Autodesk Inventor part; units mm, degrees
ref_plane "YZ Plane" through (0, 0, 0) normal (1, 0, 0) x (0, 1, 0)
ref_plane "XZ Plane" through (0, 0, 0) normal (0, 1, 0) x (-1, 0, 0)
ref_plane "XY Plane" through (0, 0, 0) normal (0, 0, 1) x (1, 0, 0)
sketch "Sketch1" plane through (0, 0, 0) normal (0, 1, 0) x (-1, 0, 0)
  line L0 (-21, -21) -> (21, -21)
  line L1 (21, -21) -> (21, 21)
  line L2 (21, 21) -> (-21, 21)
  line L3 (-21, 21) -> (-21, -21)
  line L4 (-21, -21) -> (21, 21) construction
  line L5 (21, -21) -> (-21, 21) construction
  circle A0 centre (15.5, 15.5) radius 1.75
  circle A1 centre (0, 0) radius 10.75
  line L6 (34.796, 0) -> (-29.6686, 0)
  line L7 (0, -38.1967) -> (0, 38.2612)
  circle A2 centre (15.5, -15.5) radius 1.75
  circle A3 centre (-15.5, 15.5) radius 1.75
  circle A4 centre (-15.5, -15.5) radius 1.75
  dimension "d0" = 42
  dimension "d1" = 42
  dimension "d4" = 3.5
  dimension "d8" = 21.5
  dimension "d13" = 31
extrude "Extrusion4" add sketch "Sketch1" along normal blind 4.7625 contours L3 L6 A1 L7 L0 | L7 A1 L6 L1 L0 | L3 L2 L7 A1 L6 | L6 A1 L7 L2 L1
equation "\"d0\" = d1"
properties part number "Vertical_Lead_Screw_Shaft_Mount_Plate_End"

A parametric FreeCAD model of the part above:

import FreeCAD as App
import Part
import Sketcher
from FreeCAD import Vector


def add_polygon(sketch, points):
    """Adds a closed chain of lines whose ends are joined by coincident constraints."""
    first, n = sketch.GeometryCount, len(points)
    for a, b in zip(points, points[1:] + points[:1]):
        sketch.addGeometry(Part.LineSegment(App.Vector(*a, 0), App.Vector(*b, 0)), False)
    for i in range(n):
        sketch.addConstraint(Sketcher.Constraint("Coincident", first + i, 2, first + (i + 1) % n, 1))

doc = App.newDocument("Part")
body = doc.addObject("PartDesign::Body", "Body")

# Sketch on XZ plane
sketch1 = body.newObject("Sketcher::SketchObject", "Sketch")
sketch1.AttachmentSupport = (doc.getObject("XZ_Plane"), [""])
sketch1.MapMode = "FlatFace"
add_polygon(sketch1, [(21, -21), (-21, -21), (-21, 21), (21, 21)])  # lines 0-3
sketch1.addGeometry(Part.Circle(Vector(0, 0, 0), Vector(0, 0, 1), 10.8), False)  # 4
sketch1.addGeometry(Part.Circle(Vector(15.5, -15.5, 0), Vector(0, 0, 1), 1.8), False)  # 5
sketch1.addGeometry(Part.Circle(Vector(15.5, 15.5, 0), Vector(0, 0, 1), 1.8), False)  # 6
sketch1.addGeometry(Part.Circle(Vector(-15.5, -15.5, 0), Vector(0, 0, 1), 1.8), False)  # 7
sketch1.addGeometry(Part.Circle(Vector(-15.5, 15.5, 0), Vector(0, 0, 1), 1.8), False)  # 8
sketch1.addConstraint(Sketcher.Constraint("Horizontal", 0))
sketch1.addConstraint(Sketcher.Constraint("Vertical", 1))
sketch1.addConstraint(Sketcher.Constraint("Horizontal", 2))
sketch1.addConstraint(Sketcher.Constraint("Vertical", 3))
sketch1.addConstraint(Sketcher.Constraint("Coincident", 4, 3, -1, 1))
sketch1.addConstraint(Sketcher.Constraint("Equal", 5, 6))
sketch1.addConstraint(Sketcher.Constraint("Equal", 6, 7))
sketch1.addConstraint(Sketcher.Constraint("Equal", 7, 8))
sketch1.addConstraint(Sketcher.Constraint("Symmetric", 6, 3, 7, 3, -1, 1))
sketch1.addConstraint(Sketcher.Constraint("Symmetric", 5, 3, 8, 3, -1, 1))
sketch1.addConstraint(Sketcher.Constraint("Symmetric", 0, 2, 2, 2, -1, 1))
sketch1.addConstraint(Sketcher.Constraint("Symmetric", 5, 3, 7, 3, -2))
sketch1.addConstraint(Sketcher.Constraint("Equal", 2, 1))
sketch1.addConstraint(Sketcher.Constraint("Diameter", 4, 21.5))
sketch1.addConstraint(Sketcher.Constraint("Diameter", 5, 3.5))
sketch1.addConstraint(Sketcher.Constraint("DistanceX", 0, 2, 0, 1, 42.0))
sketch1.addConstraint(Sketcher.Constraint("DistanceY", 5, 3, 6, 3, 31.0))
sketch1.addConstraint(Sketcher.Constraint("DistanceX", 7, 3, 5, 3, 31.0))
pad1 = body.newObject("PartDesign::Pad", "Pad")
pad1.Profile = sketch1
pad1.Length = 4.7625
pad1.Reversed = True

doc.recompute()
